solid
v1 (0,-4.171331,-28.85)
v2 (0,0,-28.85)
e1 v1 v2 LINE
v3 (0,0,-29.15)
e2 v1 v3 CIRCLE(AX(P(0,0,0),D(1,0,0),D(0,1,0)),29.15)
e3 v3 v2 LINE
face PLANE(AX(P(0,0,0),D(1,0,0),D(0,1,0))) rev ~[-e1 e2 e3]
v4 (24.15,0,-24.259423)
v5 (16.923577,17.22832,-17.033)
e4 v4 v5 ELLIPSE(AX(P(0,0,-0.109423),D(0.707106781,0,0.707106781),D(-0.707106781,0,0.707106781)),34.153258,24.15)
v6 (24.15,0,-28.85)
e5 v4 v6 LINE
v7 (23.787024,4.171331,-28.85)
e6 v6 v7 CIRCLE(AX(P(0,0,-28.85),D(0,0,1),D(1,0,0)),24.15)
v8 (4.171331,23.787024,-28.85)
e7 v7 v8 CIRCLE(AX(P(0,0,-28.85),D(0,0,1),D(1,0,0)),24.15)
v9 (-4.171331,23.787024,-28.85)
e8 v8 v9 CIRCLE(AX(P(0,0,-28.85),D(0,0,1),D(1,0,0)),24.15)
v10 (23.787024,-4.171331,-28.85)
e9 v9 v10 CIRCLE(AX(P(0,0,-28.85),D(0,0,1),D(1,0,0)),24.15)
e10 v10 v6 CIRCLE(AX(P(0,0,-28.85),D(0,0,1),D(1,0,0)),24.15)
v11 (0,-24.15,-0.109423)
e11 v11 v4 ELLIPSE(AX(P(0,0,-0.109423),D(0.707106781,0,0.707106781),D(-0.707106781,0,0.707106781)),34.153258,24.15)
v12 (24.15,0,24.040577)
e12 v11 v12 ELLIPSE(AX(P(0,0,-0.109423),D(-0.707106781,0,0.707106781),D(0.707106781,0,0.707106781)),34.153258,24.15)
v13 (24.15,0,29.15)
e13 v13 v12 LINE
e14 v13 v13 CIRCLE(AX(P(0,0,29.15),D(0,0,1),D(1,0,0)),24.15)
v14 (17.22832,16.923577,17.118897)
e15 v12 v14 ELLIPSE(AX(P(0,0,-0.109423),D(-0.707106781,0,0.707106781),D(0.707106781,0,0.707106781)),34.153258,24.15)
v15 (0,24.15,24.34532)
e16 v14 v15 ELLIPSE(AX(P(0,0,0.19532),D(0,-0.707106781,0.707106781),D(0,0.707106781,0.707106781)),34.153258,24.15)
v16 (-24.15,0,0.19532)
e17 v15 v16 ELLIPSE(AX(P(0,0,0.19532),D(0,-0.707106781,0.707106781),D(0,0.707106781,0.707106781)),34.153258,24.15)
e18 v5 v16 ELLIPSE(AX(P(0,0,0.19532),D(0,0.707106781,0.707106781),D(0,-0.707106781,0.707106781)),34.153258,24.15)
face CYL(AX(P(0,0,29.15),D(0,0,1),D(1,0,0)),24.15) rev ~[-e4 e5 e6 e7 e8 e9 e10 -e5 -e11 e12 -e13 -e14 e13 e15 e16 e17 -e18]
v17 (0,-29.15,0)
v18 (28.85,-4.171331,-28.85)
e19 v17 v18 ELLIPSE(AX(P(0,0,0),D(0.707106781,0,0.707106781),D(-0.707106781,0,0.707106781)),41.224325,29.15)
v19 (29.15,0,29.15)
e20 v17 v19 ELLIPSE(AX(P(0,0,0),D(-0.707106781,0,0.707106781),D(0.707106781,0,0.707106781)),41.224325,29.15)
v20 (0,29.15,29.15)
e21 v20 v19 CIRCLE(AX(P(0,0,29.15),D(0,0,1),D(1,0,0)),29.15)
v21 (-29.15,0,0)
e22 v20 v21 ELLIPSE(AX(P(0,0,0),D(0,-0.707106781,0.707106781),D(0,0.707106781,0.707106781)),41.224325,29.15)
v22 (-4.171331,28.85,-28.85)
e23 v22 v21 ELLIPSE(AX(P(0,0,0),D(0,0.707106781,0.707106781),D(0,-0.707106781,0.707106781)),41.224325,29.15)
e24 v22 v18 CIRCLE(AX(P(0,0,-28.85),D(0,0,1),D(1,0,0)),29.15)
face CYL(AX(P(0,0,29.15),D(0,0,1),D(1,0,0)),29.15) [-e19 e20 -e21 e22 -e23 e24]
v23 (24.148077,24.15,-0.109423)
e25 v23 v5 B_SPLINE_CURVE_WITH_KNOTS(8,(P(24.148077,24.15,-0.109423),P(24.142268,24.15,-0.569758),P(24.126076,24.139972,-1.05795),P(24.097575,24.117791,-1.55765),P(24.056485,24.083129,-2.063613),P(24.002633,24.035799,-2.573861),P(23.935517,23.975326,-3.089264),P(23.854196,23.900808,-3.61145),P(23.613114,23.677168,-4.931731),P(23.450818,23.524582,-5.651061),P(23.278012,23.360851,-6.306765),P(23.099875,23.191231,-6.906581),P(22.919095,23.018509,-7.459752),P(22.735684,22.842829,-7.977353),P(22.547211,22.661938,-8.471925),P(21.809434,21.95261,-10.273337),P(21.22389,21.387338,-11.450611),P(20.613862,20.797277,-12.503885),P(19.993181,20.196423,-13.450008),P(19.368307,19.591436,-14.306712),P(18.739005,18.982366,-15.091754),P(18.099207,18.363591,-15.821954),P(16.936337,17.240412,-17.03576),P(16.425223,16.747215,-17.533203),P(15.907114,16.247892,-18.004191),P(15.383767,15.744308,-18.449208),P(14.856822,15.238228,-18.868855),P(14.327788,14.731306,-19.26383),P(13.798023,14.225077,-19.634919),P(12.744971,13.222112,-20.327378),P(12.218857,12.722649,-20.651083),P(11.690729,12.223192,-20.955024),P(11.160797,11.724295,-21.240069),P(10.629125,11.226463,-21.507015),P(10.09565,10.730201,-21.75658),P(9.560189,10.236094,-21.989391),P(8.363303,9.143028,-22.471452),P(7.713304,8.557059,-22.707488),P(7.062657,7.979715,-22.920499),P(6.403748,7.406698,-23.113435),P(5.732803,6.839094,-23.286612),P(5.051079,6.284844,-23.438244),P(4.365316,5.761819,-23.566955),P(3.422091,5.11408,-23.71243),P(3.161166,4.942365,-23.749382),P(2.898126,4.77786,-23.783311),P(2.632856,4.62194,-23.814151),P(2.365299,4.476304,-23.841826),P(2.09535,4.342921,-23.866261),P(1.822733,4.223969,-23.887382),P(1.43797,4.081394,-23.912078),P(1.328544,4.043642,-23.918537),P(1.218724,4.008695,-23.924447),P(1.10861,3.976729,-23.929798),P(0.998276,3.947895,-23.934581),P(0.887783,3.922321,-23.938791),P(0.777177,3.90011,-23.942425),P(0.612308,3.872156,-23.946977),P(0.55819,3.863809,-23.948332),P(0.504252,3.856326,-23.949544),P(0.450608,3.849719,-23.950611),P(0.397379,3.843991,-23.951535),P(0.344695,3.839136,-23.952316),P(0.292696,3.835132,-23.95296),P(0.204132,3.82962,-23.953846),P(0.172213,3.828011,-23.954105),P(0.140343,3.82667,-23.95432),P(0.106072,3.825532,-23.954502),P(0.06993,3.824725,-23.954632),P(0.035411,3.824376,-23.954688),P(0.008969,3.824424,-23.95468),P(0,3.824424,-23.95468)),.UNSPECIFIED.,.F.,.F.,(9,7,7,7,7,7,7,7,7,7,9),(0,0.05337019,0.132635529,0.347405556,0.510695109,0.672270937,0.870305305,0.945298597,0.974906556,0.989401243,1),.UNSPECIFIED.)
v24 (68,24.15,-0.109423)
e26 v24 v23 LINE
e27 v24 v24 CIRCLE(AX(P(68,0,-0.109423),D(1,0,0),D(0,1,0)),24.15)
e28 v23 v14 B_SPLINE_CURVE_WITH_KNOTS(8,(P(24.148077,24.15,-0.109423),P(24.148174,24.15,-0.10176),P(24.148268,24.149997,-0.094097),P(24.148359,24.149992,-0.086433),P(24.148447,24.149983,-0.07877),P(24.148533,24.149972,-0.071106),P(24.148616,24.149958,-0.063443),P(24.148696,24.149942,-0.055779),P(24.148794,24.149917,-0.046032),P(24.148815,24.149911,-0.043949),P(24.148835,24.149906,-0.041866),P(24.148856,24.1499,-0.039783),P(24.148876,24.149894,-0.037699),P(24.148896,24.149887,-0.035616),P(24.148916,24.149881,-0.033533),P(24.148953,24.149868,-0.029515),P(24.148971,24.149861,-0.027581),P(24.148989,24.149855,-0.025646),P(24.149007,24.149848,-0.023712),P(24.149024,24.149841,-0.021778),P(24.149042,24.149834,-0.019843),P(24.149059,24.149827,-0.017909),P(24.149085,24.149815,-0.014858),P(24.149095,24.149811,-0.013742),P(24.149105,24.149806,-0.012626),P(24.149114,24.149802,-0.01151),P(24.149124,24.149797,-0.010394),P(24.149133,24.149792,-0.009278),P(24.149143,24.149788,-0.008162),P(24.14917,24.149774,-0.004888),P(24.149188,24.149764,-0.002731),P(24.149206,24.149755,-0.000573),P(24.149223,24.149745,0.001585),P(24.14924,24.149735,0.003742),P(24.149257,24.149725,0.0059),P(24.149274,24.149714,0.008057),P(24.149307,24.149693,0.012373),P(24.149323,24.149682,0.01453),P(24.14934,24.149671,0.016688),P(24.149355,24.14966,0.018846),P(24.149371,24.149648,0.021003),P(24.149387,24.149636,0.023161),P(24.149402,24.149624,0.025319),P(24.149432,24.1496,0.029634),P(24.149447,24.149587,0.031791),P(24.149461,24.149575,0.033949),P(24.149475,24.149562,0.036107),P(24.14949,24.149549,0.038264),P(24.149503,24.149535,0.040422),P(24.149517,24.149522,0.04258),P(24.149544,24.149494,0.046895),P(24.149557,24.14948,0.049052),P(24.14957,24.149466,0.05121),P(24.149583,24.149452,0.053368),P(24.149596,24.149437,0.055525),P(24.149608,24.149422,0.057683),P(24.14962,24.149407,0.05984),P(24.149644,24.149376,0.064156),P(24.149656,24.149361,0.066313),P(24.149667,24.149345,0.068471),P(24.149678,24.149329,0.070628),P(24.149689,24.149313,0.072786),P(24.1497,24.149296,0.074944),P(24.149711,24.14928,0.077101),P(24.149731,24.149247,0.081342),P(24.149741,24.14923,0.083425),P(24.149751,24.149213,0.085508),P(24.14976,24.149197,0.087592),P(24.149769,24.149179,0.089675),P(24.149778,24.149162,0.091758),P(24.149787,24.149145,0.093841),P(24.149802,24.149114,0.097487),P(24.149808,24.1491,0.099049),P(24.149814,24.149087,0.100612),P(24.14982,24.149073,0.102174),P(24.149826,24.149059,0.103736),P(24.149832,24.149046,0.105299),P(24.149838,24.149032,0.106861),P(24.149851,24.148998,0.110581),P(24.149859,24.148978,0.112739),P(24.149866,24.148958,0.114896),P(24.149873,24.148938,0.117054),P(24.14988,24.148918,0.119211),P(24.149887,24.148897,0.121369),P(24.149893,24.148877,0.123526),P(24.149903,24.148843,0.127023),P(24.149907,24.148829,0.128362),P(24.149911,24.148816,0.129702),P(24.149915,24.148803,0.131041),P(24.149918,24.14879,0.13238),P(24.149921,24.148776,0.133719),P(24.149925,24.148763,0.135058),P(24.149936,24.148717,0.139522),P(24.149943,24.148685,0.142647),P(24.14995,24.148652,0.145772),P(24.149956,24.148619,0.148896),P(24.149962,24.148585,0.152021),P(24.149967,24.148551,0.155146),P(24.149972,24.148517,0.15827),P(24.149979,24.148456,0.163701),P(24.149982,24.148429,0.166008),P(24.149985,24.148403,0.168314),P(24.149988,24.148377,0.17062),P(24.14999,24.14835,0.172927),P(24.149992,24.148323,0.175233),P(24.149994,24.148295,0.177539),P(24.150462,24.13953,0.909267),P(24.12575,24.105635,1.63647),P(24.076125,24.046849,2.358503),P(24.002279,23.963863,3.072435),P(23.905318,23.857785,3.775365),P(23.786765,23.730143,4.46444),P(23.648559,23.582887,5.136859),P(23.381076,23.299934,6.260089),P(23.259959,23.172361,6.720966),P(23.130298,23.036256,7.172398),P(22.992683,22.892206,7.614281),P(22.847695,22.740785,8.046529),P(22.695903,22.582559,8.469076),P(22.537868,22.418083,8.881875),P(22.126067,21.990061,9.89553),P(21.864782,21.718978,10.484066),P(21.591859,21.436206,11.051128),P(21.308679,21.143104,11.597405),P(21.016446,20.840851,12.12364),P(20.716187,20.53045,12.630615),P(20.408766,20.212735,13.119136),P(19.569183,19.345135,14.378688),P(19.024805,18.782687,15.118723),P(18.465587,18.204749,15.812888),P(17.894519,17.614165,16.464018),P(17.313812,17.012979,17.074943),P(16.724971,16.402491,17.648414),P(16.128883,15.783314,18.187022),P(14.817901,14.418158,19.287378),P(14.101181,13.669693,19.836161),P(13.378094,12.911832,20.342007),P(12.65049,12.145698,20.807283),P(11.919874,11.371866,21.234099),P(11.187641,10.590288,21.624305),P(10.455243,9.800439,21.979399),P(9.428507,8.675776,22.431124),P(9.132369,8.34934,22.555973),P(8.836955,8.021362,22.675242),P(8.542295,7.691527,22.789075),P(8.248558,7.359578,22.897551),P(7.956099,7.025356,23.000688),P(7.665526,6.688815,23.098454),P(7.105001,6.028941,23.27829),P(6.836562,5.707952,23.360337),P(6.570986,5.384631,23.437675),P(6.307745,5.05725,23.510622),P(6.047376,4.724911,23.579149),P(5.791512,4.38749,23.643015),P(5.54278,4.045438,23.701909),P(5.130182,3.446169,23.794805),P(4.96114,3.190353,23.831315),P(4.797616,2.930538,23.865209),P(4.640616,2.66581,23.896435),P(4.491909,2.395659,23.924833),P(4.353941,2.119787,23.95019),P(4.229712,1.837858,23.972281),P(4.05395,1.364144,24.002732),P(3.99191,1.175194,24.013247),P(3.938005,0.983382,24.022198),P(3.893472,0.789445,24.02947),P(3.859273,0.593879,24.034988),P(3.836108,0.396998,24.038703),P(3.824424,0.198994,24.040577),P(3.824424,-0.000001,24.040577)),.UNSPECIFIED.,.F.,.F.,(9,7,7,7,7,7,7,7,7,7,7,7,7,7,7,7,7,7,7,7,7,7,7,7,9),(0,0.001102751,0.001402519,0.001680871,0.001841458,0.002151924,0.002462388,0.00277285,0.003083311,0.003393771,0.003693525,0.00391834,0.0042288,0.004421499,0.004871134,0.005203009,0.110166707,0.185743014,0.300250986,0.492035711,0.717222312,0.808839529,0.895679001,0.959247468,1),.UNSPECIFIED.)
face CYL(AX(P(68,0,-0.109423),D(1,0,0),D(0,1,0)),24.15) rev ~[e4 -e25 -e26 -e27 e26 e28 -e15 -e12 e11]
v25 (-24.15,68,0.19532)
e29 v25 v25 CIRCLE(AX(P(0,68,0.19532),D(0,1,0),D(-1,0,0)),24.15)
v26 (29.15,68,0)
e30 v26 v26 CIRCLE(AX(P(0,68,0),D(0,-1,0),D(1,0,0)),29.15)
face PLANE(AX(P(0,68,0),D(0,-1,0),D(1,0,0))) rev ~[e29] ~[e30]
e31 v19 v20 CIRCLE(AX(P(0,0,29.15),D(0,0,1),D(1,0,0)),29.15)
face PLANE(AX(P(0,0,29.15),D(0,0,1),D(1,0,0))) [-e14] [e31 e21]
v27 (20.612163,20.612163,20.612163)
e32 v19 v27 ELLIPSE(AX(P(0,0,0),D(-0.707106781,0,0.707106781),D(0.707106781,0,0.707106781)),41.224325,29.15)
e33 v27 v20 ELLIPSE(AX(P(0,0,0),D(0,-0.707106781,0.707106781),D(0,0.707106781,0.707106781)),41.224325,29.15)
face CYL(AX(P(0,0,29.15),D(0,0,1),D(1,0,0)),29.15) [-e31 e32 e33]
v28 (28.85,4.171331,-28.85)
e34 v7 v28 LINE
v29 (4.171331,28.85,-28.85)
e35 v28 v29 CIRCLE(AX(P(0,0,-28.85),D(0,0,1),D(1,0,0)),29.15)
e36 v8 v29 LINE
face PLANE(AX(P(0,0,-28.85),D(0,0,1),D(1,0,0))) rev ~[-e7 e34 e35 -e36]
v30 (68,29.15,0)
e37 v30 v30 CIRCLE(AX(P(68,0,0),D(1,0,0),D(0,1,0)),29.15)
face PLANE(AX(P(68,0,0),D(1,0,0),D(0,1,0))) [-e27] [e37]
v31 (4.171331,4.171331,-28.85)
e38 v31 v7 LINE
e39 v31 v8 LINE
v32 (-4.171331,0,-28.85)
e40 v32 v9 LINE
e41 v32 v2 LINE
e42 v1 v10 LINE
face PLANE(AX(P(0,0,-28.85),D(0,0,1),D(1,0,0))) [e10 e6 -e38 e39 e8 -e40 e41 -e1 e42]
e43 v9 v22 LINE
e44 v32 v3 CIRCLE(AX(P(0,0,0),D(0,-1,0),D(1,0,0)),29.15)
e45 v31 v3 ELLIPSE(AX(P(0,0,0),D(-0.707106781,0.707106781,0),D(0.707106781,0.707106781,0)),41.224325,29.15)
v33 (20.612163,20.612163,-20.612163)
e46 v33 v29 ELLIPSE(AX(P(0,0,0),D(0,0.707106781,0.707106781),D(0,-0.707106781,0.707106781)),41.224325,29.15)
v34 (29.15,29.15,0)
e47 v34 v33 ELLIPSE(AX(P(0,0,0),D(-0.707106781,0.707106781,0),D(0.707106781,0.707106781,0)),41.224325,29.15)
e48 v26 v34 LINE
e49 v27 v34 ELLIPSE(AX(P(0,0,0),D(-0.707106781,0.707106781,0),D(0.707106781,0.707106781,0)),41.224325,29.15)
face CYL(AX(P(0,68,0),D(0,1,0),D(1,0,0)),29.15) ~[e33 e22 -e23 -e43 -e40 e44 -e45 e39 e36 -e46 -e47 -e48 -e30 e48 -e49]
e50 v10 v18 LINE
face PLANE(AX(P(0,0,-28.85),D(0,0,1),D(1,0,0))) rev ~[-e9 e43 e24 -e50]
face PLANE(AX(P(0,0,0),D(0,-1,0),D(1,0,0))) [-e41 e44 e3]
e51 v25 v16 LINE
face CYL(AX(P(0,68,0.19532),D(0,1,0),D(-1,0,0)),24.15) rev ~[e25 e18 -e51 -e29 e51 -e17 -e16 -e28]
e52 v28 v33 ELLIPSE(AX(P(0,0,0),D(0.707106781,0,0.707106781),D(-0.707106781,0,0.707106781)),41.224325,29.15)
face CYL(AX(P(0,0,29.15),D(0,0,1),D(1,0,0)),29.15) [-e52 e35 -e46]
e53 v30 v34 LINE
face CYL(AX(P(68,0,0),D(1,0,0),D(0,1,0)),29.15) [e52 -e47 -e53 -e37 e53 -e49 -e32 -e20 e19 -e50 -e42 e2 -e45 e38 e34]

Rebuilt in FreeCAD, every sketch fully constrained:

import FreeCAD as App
import Part
import Sketcher
Q = App.Units.Quantity

doc = App.newDocument("Part")
body = doc.addObject("PartDesign::Body", "Body")

sketch1 = body.newObject("Sketcher::SketchObject", "Sketch")
sketch1.AttachmentSupport = (doc.getObject("XY_Plane"), [""])
sketch1.MapMode = "FlatFace"
sketch1.AttachmentOffset = App.Placement(App.Vector(0, 0, 29.15), App.Rotation())
sketch1.addGeometry(Part.Circle(App.Vector(0, 0, 0), App.Vector(0, 0, 1), 29.15), False)
sketch1.addConstraint(Sketcher.Constraint("Coincident", 0, 3, -1, 1))
sketch1.addConstraint(Sketcher.Constraint("Diameter", 0, Q("58.3 mm")))
pad1 = body.newObject("PartDesign::Pad", "Pad")
pad1.Profile = sketch1
pad1.Length = 58
pad1.Reversed = True

sketch2 = body.newObject("Sketcher::SketchObject", "Sketch001")
sketch2.AttachmentSupport = (doc.getObject("XZ_Plane"), [""])
sketch2.MapMode = "FlatFace"
sketch2.AttachmentOffset = App.Placement(App.Vector(0, 0, -68), App.Rotation())
sketch2.addGeometry(Part.Circle(App.Vector(0, 0, 0), App.Vector(0, 0, 1), 29.15), False)
sketch2.addConstraint(Sketcher.Constraint("Coincident", 0, 3, -1, 1))
sketch2.addConstraint(Sketcher.Constraint("Diameter", 0, Q("58.3 mm")))
pad2 = body.newObject("PartDesign::Pad", "Pad001")
pad2.Profile = sketch2
pad2.Length = 68

sketch3 = body.newObject("Sketcher::SketchObject", "Sketch002")
sketch3.AttachmentSupport = (doc.getObject("YZ_Plane"), [""])
sketch3.MapMode = "FlatFace"
sketch3.AttachmentOffset = App.Placement(App.Vector(0, 0, 68), App.Rotation())
sketch3.addGeometry(Part.Circle(App.Vector(0, 0, 0), App.Vector(0, 0, 1), 29.15), False)
sketch3.addConstraint(Sketcher.Constraint("Coincident", 0, 3, -1, 1))
sketch3.addConstraint(Sketcher.Constraint("Diameter", 0, Q("58.3 mm")))
pad3 = body.newObject("PartDesign::Pad", "Pad002")
pad3.Profile = sketch3
pad3.Length = 68
pad3.Reversed = True

sketch4 = body.newObject("Sketcher::SketchObject", "Sketch003")
sketch4.AttachmentSupport = (doc.getObject("XY_Plane"), [""])
sketch4.MapMode = "FlatFace"
sketch4.AttachmentOffset = App.Placement(App.Vector(0, 0, 29.15), App.Rotation())
sketch4.addGeometry(Part.Circle(App.Vector(0, 0, 0), App.Vector(0, 0, 1), 24.15), False)
sketch4.addConstraint(Sketcher.Constraint("Coincident", 0, 3, -1, 1))
sketch4.addConstraint(Sketcher.Constraint("Diameter", 0, Q("48.3 mm")))
pocket1 = body.newObject("PartDesign::Pocket", "Pocket")
pocket1.Profile = sketch4
pocket1.Length = 58

sketch5 = body.newObject("Sketcher::SketchObject", "Sketch004")
sketch5.AttachmentSupport = (doc.getObject("YZ_Plane"), [""])
sketch5.MapMode = "FlatFace"
sketch5.AttachmentOffset = App.Placement(App.Vector(0, 0, 68), App.Rotation())
sketch5.addGeometry(Part.Circle(App.Vector(0, -0.109423, 0), App.Vector(0, 0, 1), 24.15), False)
sketch5.addConstraint(Sketcher.Constraint("PointOnObject", 0, 3, -2))
sketch5.addConstraint(Sketcher.Constraint("Diameter", 0, Q("48.3 mm")))
sketch5.addConstraint(Sketcher.Constraint("DistanceY", 0, 3, -1, 1, Q("0.109423 mm")))
pocket2 = body.newObject("PartDesign::Pocket", "Pocket001")
pocket2.Profile = sketch5
pocket2.Length = 68

sketch6 = body.newObject("Sketcher::SketchObject", "Sketch005")
sketch6.AttachmentSupport = (doc.getObject("XZ_Plane"), [""])
sketch6.MapMode = "FlatFace"
sketch6.AttachmentOffset = App.Placement(App.Vector(0, 0, -68), App.Rotation())
sketch6.addGeometry(Part.Circle(App.Vector(0, 0.19532, 0), App.Vector(0, 0, 1), 24.15), False)
sketch6.addConstraint(Sketcher.Constraint("PointOnObject", 0, 3, -2))
sketch6.addConstraint(Sketcher.Constraint("Diameter", 0, Q("48.3 mm")))
sketch6.addConstraint(Sketcher.Constraint("DistanceY", -1, 1, 0, 3, Q("0.19532 mm")))
pocket3 = body.newObject("PartDesign::Pocket", "Pocket002")
pocket3.Profile = sketch6
pocket3.Length = 68
pocket3.Reversed = True

doc.recompute()
